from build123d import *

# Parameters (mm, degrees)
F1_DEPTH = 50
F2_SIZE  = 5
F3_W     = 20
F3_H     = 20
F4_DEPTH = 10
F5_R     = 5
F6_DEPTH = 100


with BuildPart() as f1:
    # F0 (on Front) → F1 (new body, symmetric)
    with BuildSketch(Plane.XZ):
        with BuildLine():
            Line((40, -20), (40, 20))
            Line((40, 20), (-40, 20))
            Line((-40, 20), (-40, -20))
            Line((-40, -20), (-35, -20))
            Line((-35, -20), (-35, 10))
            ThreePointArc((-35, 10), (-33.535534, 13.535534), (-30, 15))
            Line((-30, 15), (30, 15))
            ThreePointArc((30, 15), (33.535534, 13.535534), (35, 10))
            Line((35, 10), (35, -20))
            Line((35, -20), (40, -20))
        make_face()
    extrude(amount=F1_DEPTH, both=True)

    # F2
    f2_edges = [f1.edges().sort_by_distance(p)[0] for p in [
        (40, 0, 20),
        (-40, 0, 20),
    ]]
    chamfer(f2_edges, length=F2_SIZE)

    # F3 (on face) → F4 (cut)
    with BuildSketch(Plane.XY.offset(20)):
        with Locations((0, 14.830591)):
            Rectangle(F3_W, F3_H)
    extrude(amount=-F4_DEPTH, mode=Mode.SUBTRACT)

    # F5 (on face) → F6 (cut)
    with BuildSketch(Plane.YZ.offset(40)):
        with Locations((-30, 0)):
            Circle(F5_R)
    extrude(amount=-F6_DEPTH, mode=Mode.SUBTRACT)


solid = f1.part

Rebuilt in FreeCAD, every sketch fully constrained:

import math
import FreeCAD as App
import Part
import Sketcher


def edges_at(feature, points):
    """Names of the edges that pass closest to the given points."""
    edges = feature.Shape.Edges
    near = lambda p: min(range(len(edges)), key=lambda i: edges[i].distToShape(Part.Vertex(*p))[0])
    return sorted({f"Edge{near(p) + 1}" for p in points})


def add_polygon(sketch, points):
    """Adds a closed chain of lines whose ends are joined by coincident constraints."""
    first, n = sketch.GeometryCount, len(points)
    for a, b in zip(points, points[1:] + points[:1]):
        sketch.addGeometry(Part.LineSegment(App.Vector(*a, 0), App.Vector(*b, 0)), False)
    for i in range(n):
        sketch.addConstraint(Sketcher.Constraint("Coincident", first + i, 2, first + (i + 1) % n, 1))

doc = App.newDocument("Part")
params = doc.addObject("Spreadsheet::Sheet", "Params")
for row, (alias, value) in enumerate([
    ("sketch1_radius", "5 mm"),
    ("sketch1_width", "80 mm"),
    ("sketch1_width2", "5 mm"),
    ("sketch1_height", "40 mm"),
    ("sketch1_height2", "30 mm"),
    ("pad1_length", "100 mm"),
    ("chamfer_size", "5 mm"),
    ("sketch2_width", "20 mm"),
    ("pocket1_length", "10 mm"),
    ("sketch3_diameter", "10 mm"),
    ("pocket2_length", "100 mm"),
], start=1):
    params.set(f"A{row}", alias)
    params.set(f"B{row}", "=" + value)
    params.setAlias(f"B{row}", alias)

body = doc.addObject("PartDesign::Body", "Body")

# Sketch on XZ plane
sketch1 = body.newObject("Sketcher::SketchObject", "Sketch")
sketch1.AttachmentSupport = (doc.getObject("XZ_Plane"), [""])
sketch1.MapMode = "FlatFace"
sketch1.addGeometry([
    Part.LineSegment(App.Vector(40, -20, 0), App.Vector(40, 20, 0)),  # 0
    Part.LineSegment(App.Vector(40, 20, 0), App.Vector(-40, 20, 0)),  # 1
    Part.LineSegment(App.Vector(-40, 20, 0), App.Vector(-40, -20, 0)),  # 2
    Part.LineSegment(App.Vector(-40, -20, 0), App.Vector(-35, -20, 0)),  # 3
    Part.LineSegment(App.Vector(-35, -20, 0), App.Vector(-35, 10, 0)),  # 4
    Part.ArcOfCircle(Part.Circle(App.Vector(-30, 10, 0), App.Vector(0, 0, 1), 5), math.radians(90), math.radians(180)),  # 5
    Part.LineSegment(App.Vector(-30, 15, 0), App.Vector(30, 15, 0)),  # 6
    Part.ArcOfCircle(Part.Circle(App.Vector(30, 10, 0), App.Vector(0, 0, 1), 5), math.radians(0), math.radians(90)),  # 7
    Part.LineSegment(App.Vector(35, 10, 0), App.Vector(35, -20, 0)),  # 8
    Part.LineSegment(App.Vector(35, -20, 0), App.Vector(40, -20, 0)),  # 9
], False)
sketch1.addConstraint([
    Sketcher.Constraint("Coincident", 0, 2, 1, 1),
    Sketcher.Constraint("Coincident", 1, 2, 2, 1),
    Sketcher.Constraint("Coincident", 2, 2, 3, 1),
    Sketcher.Constraint("Coincident", 3, 2, 4, 1),
    Sketcher.Constraint("Tangent", 4, 2, 5, 2),
    Sketcher.Constraint("Tangent", 5, 1, 6, 1),
    Sketcher.Constraint("Tangent", 6, 2, 7, 2),
    Sketcher.Constraint("Tangent", 7, 1, 8, 1),
    Sketcher.Constraint("Coincident", 8, 2, 9, 1),
    Sketcher.Constraint("Coincident", 9, 2, 0, 1),
    Sketcher.Constraint("Vertical", 0),
    Sketcher.Constraint("Horizontal", 1),
    Sketcher.Constraint("Vertical", 2),
    Sketcher.Constraint("Horizontal", 3),
    Sketcher.Constraint("Vertical", 4),
    Sketcher.Constraint("Horizontal", 6),
    Sketcher.Constraint("Vertical", 8),
    Sketcher.Constraint("Horizontal", 9),
    Sketcher.Constraint("Equal", 5, 7),
    Sketcher.Constraint("Symmetric", 0, 2, 2, 2, -1, 1),
    Sketcher.Constraint("Symmetric", 3, 2, 8, 2, -2),
    Sketcher.Constraint("Radius", 5, 5.0),
    Sketcher.Constraint("DistanceX", 1, 2, 1, 1, 80.0),
    Sketcher.Constraint("DistanceX", 3, 1, 3, 2, 5.0),
    Sketcher.Constraint("DistanceY", 0, 1, 0, 2, 40.0),
    Sketcher.Constraint("DistanceY", 4, 1, 4, 2, 30.0),
])
sketch1.setExpression("Constraints[21]", "Params.sketch1_radius")
sketch1.setExpression("Constraints[22]", "Params.sketch1_width")
sketch1.setExpression("Constraints[23]", "Params.sketch1_width2")
sketch1.setExpression("Constraints[24]", "Params.sketch1_height")
sketch1.setExpression("Constraints[25]", "Params.sketch1_height2")
pad1 = body.newObject("PartDesign::Pad", "Pad")
pad1.Profile = sketch1
pad1.setExpression("Length", "Params.pad1_length")
pad1.Midplane = True
doc.recompute()

chamfer = body.newObject("PartDesign::Chamfer", "Chamfer")
chamfer.Base = (pad1, edges_at(pad1, [(40, 0, 20), (-40, 0, 20)]))
chamfer.setExpression("Size", "Params.chamfer_size")

# Sketch on XY plane
sketch2 = body.newObject("Sketcher::SketchObject", "Sketch001")
sketch2.AttachmentSupport = (doc.getObject("XY_Plane"), [""])
sketch2.MapMode = "FlatFace"
sketch2.AttachmentOffset = App.Placement(App.Vector(0, 0, 20), App.Rotation())
add_polygon(sketch2, [(-10, 25), (-10, 5), (10, 5), (10, 25)])  # lines 0-3
sketch2.addConstraint([
    Sketcher.Constraint("Vertical", 0),
    Sketcher.Constraint("Horizontal", 1),
    Sketcher.Constraint("Vertical", 2),
    Sketcher.Constraint("Horizontal", 3),
    Sketcher.Constraint("Equal", 3, 0),
    Sketcher.Constraint("DistanceX", 1, 1, 1, 2, 20.0),
    Sketcher.Constraint("DistanceX", 0, 2, -1, 1, 10.0),
    Sketcher.Constraint("DistanceY", -1, 1, 0, 2, 4.830591),
])
sketch2.setExpression("Constraints[9]", "Params.sketch2_width")
pocket1 = body.newObject("PartDesign::Pocket", "Pocket")
pocket1.Profile = sketch2
pocket1.setExpression("Length", "Params.pocket1_length")

# Sketch on YZ plane
sketch3 = body.newObject("Sketcher::SketchObject", "Sketch002")
sketch3.AttachmentSupport = (doc.getObject("YZ_Plane"), [""])
sketch3.MapMode = "FlatFace"
sketch3.AttachmentOffset = App.Placement(App.Vector(0, 0, 40), App.Rotation())
sketch3.addGeometry(Part.Circle(App.Vector(-30, 0, 0), App.Vector(0, 0, 1), 5), False)
sketch3.addConstraint([
    Sketcher.Constraint("PointOnObject", 0, 3, -1),
    Sketcher.Constraint("Diameter", 0, 10.0),
    Sketcher.Constraint("DistanceX", 0, 3, -1, 1, 30.0),
])
sketch3.setExpression("Constraints[1]", "Params.sketch3_diameter")
pocket2 = body.newObject("PartDesign::Pocket", "Pocket001")
pocket2.Profile = sketch3
pocket2.setExpression("Length", "Params.pocket2_length")

doc.recompute()
